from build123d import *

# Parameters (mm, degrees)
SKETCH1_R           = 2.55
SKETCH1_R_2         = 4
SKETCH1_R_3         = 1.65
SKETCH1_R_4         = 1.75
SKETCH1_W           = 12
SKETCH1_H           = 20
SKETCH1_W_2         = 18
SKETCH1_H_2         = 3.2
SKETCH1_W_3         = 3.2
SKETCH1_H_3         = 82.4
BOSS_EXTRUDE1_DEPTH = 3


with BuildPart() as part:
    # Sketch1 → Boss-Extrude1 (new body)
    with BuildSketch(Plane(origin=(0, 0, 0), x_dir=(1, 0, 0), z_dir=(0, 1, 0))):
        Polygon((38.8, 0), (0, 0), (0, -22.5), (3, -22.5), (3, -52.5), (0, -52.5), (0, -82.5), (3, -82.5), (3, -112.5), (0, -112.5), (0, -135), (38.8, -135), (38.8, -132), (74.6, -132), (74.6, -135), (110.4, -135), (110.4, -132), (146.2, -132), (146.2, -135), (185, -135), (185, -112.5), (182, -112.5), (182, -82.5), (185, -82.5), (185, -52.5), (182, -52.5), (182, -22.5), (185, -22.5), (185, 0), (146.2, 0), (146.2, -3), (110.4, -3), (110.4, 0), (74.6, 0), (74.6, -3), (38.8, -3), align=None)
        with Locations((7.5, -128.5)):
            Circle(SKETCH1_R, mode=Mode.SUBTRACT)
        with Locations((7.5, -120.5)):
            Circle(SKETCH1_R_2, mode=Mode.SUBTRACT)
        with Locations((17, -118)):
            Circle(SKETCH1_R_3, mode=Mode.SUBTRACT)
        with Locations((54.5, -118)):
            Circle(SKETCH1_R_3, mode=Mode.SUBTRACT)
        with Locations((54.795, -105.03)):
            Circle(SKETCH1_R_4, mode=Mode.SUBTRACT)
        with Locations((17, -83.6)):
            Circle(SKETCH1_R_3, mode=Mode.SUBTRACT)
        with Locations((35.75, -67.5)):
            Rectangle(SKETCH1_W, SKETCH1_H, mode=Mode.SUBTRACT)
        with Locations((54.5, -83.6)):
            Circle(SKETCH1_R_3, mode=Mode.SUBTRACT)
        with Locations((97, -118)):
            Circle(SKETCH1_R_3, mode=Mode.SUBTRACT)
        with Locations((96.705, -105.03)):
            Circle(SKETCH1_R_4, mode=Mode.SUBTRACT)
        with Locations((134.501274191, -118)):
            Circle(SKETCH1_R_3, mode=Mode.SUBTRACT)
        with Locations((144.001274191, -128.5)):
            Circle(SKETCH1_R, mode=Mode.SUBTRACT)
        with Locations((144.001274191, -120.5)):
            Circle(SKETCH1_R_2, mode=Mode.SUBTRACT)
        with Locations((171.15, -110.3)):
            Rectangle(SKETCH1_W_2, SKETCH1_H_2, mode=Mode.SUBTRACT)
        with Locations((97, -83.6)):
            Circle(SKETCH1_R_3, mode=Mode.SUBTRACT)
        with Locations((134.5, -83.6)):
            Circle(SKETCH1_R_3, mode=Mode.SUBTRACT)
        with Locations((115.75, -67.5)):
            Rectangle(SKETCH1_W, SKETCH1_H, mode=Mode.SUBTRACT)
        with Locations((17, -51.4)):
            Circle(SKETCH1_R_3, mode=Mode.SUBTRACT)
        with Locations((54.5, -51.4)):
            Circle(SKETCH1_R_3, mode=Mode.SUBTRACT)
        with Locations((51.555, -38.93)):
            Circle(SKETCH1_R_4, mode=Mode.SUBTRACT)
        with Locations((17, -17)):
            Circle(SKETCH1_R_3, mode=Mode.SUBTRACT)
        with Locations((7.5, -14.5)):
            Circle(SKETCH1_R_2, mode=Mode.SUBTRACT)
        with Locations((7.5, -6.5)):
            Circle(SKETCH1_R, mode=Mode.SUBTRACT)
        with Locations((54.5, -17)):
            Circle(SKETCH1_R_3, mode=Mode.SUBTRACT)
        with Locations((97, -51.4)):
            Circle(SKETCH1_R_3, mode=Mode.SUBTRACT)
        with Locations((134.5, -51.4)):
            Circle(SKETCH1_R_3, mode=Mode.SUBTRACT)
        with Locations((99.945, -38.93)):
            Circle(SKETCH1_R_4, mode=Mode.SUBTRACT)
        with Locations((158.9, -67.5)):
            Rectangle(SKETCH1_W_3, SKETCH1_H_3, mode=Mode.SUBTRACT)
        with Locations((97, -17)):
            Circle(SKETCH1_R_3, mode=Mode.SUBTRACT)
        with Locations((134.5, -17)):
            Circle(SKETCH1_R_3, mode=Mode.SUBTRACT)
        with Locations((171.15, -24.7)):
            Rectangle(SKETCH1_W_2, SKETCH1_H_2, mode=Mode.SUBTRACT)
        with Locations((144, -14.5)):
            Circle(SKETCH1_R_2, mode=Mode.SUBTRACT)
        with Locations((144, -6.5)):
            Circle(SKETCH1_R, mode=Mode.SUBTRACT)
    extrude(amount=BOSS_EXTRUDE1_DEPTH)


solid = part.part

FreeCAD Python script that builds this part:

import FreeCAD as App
import Part
import Sketcher
Q = App.Units.Quantity


def add_polygon(sketch, points):
    """Adds a closed chain of lines whose ends are joined by coincident constraints."""
    first, n = sketch.GeometryCount, len(points)
    for a, b in zip(points, points[1:] + points[:1]):
        sketch.addGeometry(Part.LineSegment(App.Vector(*a, 0), App.Vector(*b, 0)), False)
    for i in range(n):
        sketch.addConstraint(Sketcher.Constraint("Coincident", first + i, 2, first + (i + 1) % n, 1))

doc = App.newDocument("Part")
body = doc.addObject("PartDesign::Body", "Body")

# Sketch on XZ plane
sketch1 = body.newObject("Sketcher::SketchObject", "Sketch")
sketch1.AttachmentSupport = (doc.getObject("XZ_Plane"), [""])
sketch1.MapMode = "FlatFace"
add_polygon(sketch1, [(38.8, 0), (0, 0), (0, 22.5), (3, 22.5), (3, 52.5), (0, 52.5), (0, 82.5), (3, 82.5), (3, 112.5), (0, 112.5), (0, 135), (38.8, 135), (38.8, 132), (74.6, 132), (74.6, 135), (110.4, 135), (110.4, 132), (146.2, 132), (146.2, 135), (185, 135), (185, 112.5), (182, 112.5), (182, 82.5), (185, 82.5), (185, 52.5), (182, 52.5), (182, 22.5), (185, 22.5), (185, 0), (146.2, 0), (146.2, 3), (110.4, 3), (110.4, 0), (74.6, 0), (74.6, 3), (38.8, 3)])  # lines 0-35
sketch1.addGeometry(Part.Circle(App.Vector(7.5, 128.5, 0), App.Vector(0, 0, 1), 2.55), False)  # 36
sketch1.addGeometry(Part.Circle(App.Vector(7.5, 120.5, 0), App.Vector(0, 0, 1), 4), False)  # 37
sketch1.addGeometry(Part.Circle(App.Vector(17, 118, 0), App.Vector(0, 0, 1), 1.65), False)  # 38
sketch1.addGeometry(Part.Circle(App.Vector(54.5, 118, 0), App.Vector(0, 0, 1), 1.65), False)  # 39
sketch1.addGeometry(Part.Circle(App.Vector(54.795, 105.03, 0), App.Vector(0, 0, 1), 1.75), False)  # 40
sketch1.addGeometry(Part.Circle(App.Vector(17, 83.6, 0), App.Vector(0, 0, 1), 1.65), False)  # 41
sketch1.addGeometry(Part.Circle(App.Vector(54.5, 83.6, 0), App.Vector(0, 0, 1), 1.65), False)  # 42
sketch1.addGeometry(Part.Circle(App.Vector(97, 118, 0), App.Vector(0, 0, 1), 1.65), False)  # 43
sketch1.addGeometry(Part.Circle(App.Vector(134.501274, 118, 0), App.Vector(0, 0, 1), 1.65), False)  # 44
sketch1.addGeometry(Part.Circle(App.Vector(96.705, 105.03, 0), App.Vector(0, 0, 1), 1.75), False)  # 45
sketch1.addGeometry(Part.Circle(App.Vector(144.001274, 128.5, 0), App.Vector(0, 0, 1), 2.55), False)  # 46
sketch1.addGeometry(Part.Circle(App.Vector(144.001274, 120.5, 0), App.Vector(0, 0, 1), 4), False)  # 47
add_polygon(sketch1, [(180.15, 111.9), (162.15, 111.9), (162.15, 108.7), (180.15, 108.7)])  # lines 48-51
sketch1.addGeometry(Part.Circle(App.Vector(97, 83.6, 0), App.Vector(0, 0, 1), 1.65), False)  # 52
sketch1.addGeometry(Part.Circle(App.Vector(134.5, 83.6, 0), App.Vector(0, 0, 1), 1.65), False)  # 53
add_polygon(sketch1, [(41.75, 77.5), (29.75, 77.5), (29.75, 57.5), (41.75, 57.5)])  # lines 54-57
sketch1.addGeometry(Part.Circle(App.Vector(17, 51.4, 0), App.Vector(0, 0, 1), 1.65), False)  # 58
sketch1.addGeometry(Part.Circle(App.Vector(54.5, 51.4, 0), App.Vector(0, 0, 1), 1.65), False)  # 59
sketch1.addGeometry(Part.Circle(App.Vector(51.555, 38.93, 0), App.Vector(0, 0, 1), 1.75), False)  # 60
sketch1.addGeometry(Part.Circle(App.Vector(7.5, 14.5, 0), App.Vector(0, 0, 1), 4), False)  # 61
sketch1.addGeometry(Part.Circle(App.Vector(17, 17, 0), App.Vector(0, 0, 1), 1.65), False)  # 62
sketch1.addGeometry(Part.Circle(App.Vector(7.5, 6.5, 0), App.Vector(0, 0, 1), 2.55), False)  # 63
sketch1.addGeometry(Part.Circle(App.Vector(54.5, 17, 0), App.Vector(0, 0, 1), 1.65), False)  # 64
add_polygon(sketch1, [(121.75, 77.5), (109.75, 77.5), (109.75, 57.5), (121.75, 57.5)])  # lines 65-68
sketch1.addGeometry(Part.Circle(App.Vector(97, 51.4, 0), App.Vector(0, 0, 1), 1.65), False)  # 69
sketch1.addGeometry(Part.Circle(App.Vector(99.945, 38.93, 0), App.Vector(0, 0, 1), 1.75), False)  # 70
sketch1.addGeometry(Part.Circle(App.Vector(134.5, 51.4, 0), App.Vector(0, 0, 1), 1.65), False)  # 71
add_polygon(sketch1, [(160.5, 108.7), (157.3, 108.7), (157.3, 26.3), (160.5, 26.3)])  # lines 72-75
sketch1.addGeometry(Part.Circle(App.Vector(97, 17, 0), App.Vector(0, 0, 1), 1.65), False)  # 76
sketch1.addGeometry(Part.Circle(App.Vector(134.5, 17, 0), App.Vector(0, 0, 1), 1.65), False)  # 77
add_polygon(sketch1, [(180.15, 26.3), (162.15, 26.3), (162.15, 23.1), (180.15, 23.1)])  # lines 78-81
sketch1.addGeometry(Part.Circle(App.Vector(144, 14.5, 0), App.Vector(0, 0, 1), 4), False)  # 82
sketch1.addGeometry(Part.Circle(App.Vector(144, 6.5, 0), App.Vector(0, 0, 1), 2.55), False)  # 83
sketch1.addConstraint([
    Sketcher.Constraint("Horizontal", 0),
    Sketcher.Constraint("Vertical", 1),
    Sketcher.Constraint("Horizontal", 2),
    Sketcher.Constraint("Vertical", 3),
    Sketcher.Constraint("Horizontal", 4),
    Sketcher.Constraint("Vertical", 5),
    Sketcher.Constraint("Horizontal", 6),
    Sketcher.Constraint("Vertical", 7),
    Sketcher.Constraint("Horizontal", 8),
    Sketcher.Constraint("Vertical", 9),
    Sketcher.Constraint("Horizontal", 10),
    Sketcher.Constraint("Vertical", 11),
    Sketcher.Constraint("Horizontal", 12),
    Sketcher.Constraint("Vertical", 13),
    Sketcher.Constraint("Horizontal", 14),
    Sketcher.Constraint("Vertical", 15),
    Sketcher.Constraint("Horizontal", 16),
    Sketcher.Constraint("Vertical", 17),
    Sketcher.Constraint("Horizontal", 18),
    Sketcher.Constraint("Vertical", 19),
    Sketcher.Constraint("Horizontal", 20),
    Sketcher.Constraint("Vertical", 21),
    Sketcher.Constraint("Horizontal", 22),
    Sketcher.Constraint("Vertical", 23),
    Sketcher.Constraint("Horizontal", 24),
    Sketcher.Constraint("Vertical", 25),
    Sketcher.Constraint("Horizontal", 26),
    Sketcher.Constraint("Vertical", 27),
    Sketcher.Constraint("Horizontal", 28),
    Sketcher.Constraint("Vertical", 29),
    Sketcher.Constraint("Horizontal", 30),
    Sketcher.Constraint("Vertical", 31),
    Sketcher.Constraint("Horizontal", 32),
    Sketcher.Constraint("Vertical", 33),
    Sketcher.Constraint("Horizontal", 34),
    Sketcher.Constraint("Vertical", 35),
    Sketcher.Constraint("Horizontal", 48),
    Sketcher.Constraint("Vertical", 49),
    Sketcher.Constraint("Horizontal", 50),
    Sketcher.Constraint("Vertical", 51),
    Sketcher.Constraint("Horizontal", 54),
    Sketcher.Constraint("Vertical", 55),
    Sketcher.Constraint("Horizontal", 56),
    Sketcher.Constraint("Vertical", 57),
    Sketcher.Constraint("Horizontal", 65),
    Sketcher.Constraint("Vertical", 66),
    Sketcher.Constraint("Horizontal", 67),
    Sketcher.Constraint("Vertical", 68),
    Sketcher.Constraint("Horizontal", 72),
    Sketcher.Constraint("Vertical", 73),
    Sketcher.Constraint("Horizontal", 74),
    Sketcher.Constraint("Vertical", 75),
    Sketcher.Constraint("Horizontal", 78),
    Sketcher.Constraint("Vertical", 79),
    Sketcher.Constraint("Horizontal", 80),
    Sketcher.Constraint("Vertical", 81),
    Sketcher.Constraint("Coincident", 0, 2, -1, 1),
    Sketcher.Constraint("Equal", 38, 39),
    Sketcher.Constraint("Equal", 39, 41),
    Sketcher.Constraint("Equal", 41, 42),
    Sketcher.Constraint("Equal", 42, 43),
    Sketcher.Constraint("Equal", 43, 44),
    Sketcher.Constraint("Equal", 40, 45),
    Sketcher.Constraint("Equal", 36, 46),
    Sketcher.Constraint("Equal", 37, 47),
    Sketcher.Constraint("Equal", 44, 52),
    Sketcher.Constraint("Equal", 52, 53),
    Sketcher.Constraint("Equal", 53, 58),
    Sketcher.Constraint("Equal", 58, 59),
    Sketcher.Constraint("Equal", 45, 60),
    Sketcher.Constraint("Equal", 47, 61),
    Sketcher.Constraint("Equal", 59, 62),
    Sketcher.Constraint("Equal", 46, 63),
    Sketcher.Constraint("Equal", 62, 64),
    Sketcher.Constraint("Equal", 64, 69),
    Sketcher.Constraint("Equal", 60, 70),
    Sketcher.Constraint("Equal", 69, 71),
    Sketcher.Constraint("Equal", 71, 76),
    Sketcher.Constraint("Equal", 76, 77),
    Sketcher.Constraint("Equal", 61, 82),
    Sketcher.Constraint("Equal", 63, 83),
    Sketcher.Constraint("PointOnObject", 4, 2, -2),
    Sketcher.Constraint("PointOnObject", 8, 2, -2),
    Sketcher.Constraint("PointOnObject", 27, 2, -1),
    Sketcher.Constraint("PointOnObject", 31, 2, -1),
    Sketcher.Constraint("Horizontal", 38, 3, 39, 3),
    Sketcher.Constraint("Horizontal", 41, 3, 42, 3),
    Sketcher.Constraint("Horizontal", 39, 3, 43, 3),
    Sketcher.Constraint("Horizontal", 43, 3, 44, 3),
    Sketcher.Constraint("Horizontal", 40, 3, 45, 3),
    Sketcher.Constraint("Horizontal", 36, 3, 46, 3),
    Sketcher.Constraint("Horizontal", 37, 3, 47, 3),
    Sketcher.Constraint("Horizontal", 42, 3, 52, 3),
    Sketcher.Constraint("Horizontal", 52, 3, 53, 3),
    Sketcher.Constraint("Horizontal", 58, 3, 59, 3),
    Sketcher.Constraint("Horizontal", 62, 3, 64, 3),
    Sketcher.Constraint("Horizontal", 59, 3, 69, 3),
    Sketcher.Constraint("Horizontal", 60, 3, 70, 3),
    Sketcher.Constraint("Horizontal", 69, 3, 71, 3),
    Sketcher.Constraint("Horizontal", 64, 3, 76, 3),
    Sketcher.Constraint("Horizontal", 76, 3, 77, 3),
    Sketcher.Constraint("Horizontal", 61, 3, 82, 3),
    Sketcher.Constraint("Horizontal", 63, 3, 83, 3),
    Sketcher.Constraint("Horizontal", 10, 2, 13, 2),
    Sketcher.Constraint("Horizontal", 12, 2, 15, 2),
    Sketcher.Constraint("Horizontal", 14, 2, 17, 2),
    Sketcher.Constraint("Horizontal", 8, 2, 19, 2),
    Sketcher.Constraint("Horizontal", 6, 2, 21, 2),
    Sketcher.Constraint("Horizontal", 4, 2, 23, 2),
    Sketcher.Constraint("Horizontal", 2, 2, 25, 2),
    Sketcher.Constraint("Horizontal", 30, 2, 33, 2),
    Sketcher.Constraint("Horizontal", 57, 2, 65, 2),
    Sketcher.Constraint("Horizontal", 56, 2, 66, 2),
    Sketcher.Constraint("Horizontal", 50, 2, 72, 2),
    Sketcher.Constraint("Horizontal", 74, 2, 78, 2),
    Sketcher.Constraint("Vertical", 36, 3, 37, 3),
    Sketcher.Constraint("Vertical", 38, 3, 41, 3),
    Sketcher.Constraint("Vertical", 39, 3, 42, 3),
    Sketcher.Constraint("Vertical", 46, 3, 47, 3),
    Sketcher.Constraint("Vertical", 43, 3, 52, 3),
    Sketcher.Constraint("Vertical", 41, 3, 58, 3),
    Sketcher.Constraint("Vertical", 42, 3, 59, 3),
    Sketcher.Constraint("Vertical", 37, 3, 61, 3),
    Sketcher.Constraint("Vertical", 58, 3, 62, 3),
    Sketcher.Constraint("Vertical", 61, 3, 63, 3),
    Sketcher.Constraint("Vertical", 59, 3, 64, 3),
    Sketcher.Constraint("Vertical", 52, 3, 69, 3),
    Sketcher.Constraint("Vertical", 53, 3, 71, 3),
    Sketcher.Constraint("Vertical", 69, 3, 76, 3),
    Sketcher.Constraint("Vertical", 71, 3, 77, 3),
    Sketcher.Constraint("Vertical", 82, 3, 83, 3),
    Sketcher.Constraint("Vertical", 3, 2, 6, 2),
    Sketcher.Constraint("Vertical", 19, 2, 22, 2),
    Sketcher.Constraint("Vertical", 21, 2, 24, 2),
    Sketcher.Constraint("Vertical", 23, 2, 26, 2),
    Sketcher.Constraint("Vertical", 17, 2, 28, 2),
    Sketcher.Constraint("Vertical", 15, 2, 30, 2),
    Sketcher.Constraint("Vertical", 13, 2, 32, 2),
    Sketcher.Constraint("Vertical", 11, 2, 34, 2),
    Sketcher.Constraint("Vertical", 49, 2, 78, 2),
    Sketcher.Constraint("Vertical", 51, 2, 80, 2),
    Sketcher.Constraint("Equal", 12, 14),
    Sketcher.Constraint("Equal", 14, 16),
    Sketcher.Constraint("Equal", 10, 18),
    Sketcher.Constraint("Equal", 8, 20),
    Sketcher.Constraint("Equal", 56, 65),
    Sketcher.Constraint("Equal", 3, 5),
    Sketcher.Constraint("Equal", 5, 7),
    Sketcher.Constraint("Equal", 1, 9),
    Sketcher.Constraint("Equal", 26, 11),
    Sketcher.Constraint("Equal", 17, 29),
    Sketcher.Constraint("Equal", 74, 49),
    Sketcher.Constraint("Equal", 51, 79),
    Sketcher.Constraint("Diameter", 37, Q("8 mm")),
    Sketcher.Constraint("Diameter", 36, Q("5.1 mm")),
    Sketcher.Constraint("Diameter", 38, Q("3.3 mm")),
    Sketcher.Constraint("Diameter", 40, Q("3.5 mm")),
    Sketcher.Constraint("DistanceX", 2, 1, 2, 2, Q("3 mm")),
    Sketcher.Constraint("DistanceX", 48, 2, 48, 1, Q("18 mm")),
    Sketcher.Constraint("DistanceX", 54, 2, 54, 1, Q("12 mm")),
    Sketcher.Constraint("DistanceY", 3, 1, 3, 2, Q("30 mm")),
    Sketcher.Constraint("DistanceY", 55, 2, 55, 1, Q("20 mm")),
    Sketcher.Constraint("DistanceX", 0, 2, 0, 1, Q("38.8 mm")),
    Sketcher.Constraint("DistanceX", 12, 1, 12, 2, Q("35.8 mm")),
    Sketcher.Constraint("DistanceX", 72, 2, 72, 1, Q("3.2 mm")),
    Sketcher.Constraint("DistanceY", 1, 1, 1, 2, Q("22.5 mm")),
    Sketcher.Constraint("DistanceY", 73, 2, 73, 1, Q("82.4 mm")),
    Sketcher.Constraint("DistanceX", -1, 1, 38, 3, Q("17 mm")),
    Sketcher.Constraint("DistanceY", -1, 1, 38, 3, Q("118 mm")),
    Sketcher.Constraint("DistanceX", -1, 1, 43, 3, Q("97 mm")),
    Sketcher.Constraint("DistanceY", -1, 1, 62, 3, Q("17 mm")),
    Sketcher.Constraint("DistanceX", -1, 1, 82, 3, Q("144 mm")),
    Sketcher.Constraint("DistanceX", -1, 1, 36, 3, Q("7.5 mm")),
    Sketcher.Constraint("DistanceY", -1, 1, 36, 3, Q("128.5 mm")),
    Sketcher.Constraint("DistanceY", -1, 1, 37, 3, Q("120.5 mm")),
    Sketcher.Constraint("DistanceX", -1, 1, 39, 3, Q("54.5 mm")),
    Sketcher.Constraint("DistanceY", -1, 1, 41, 3, Q("83.6 mm")),
    Sketcher.Constraint("DistanceX", -1, 1, 53, 3, Q("134.5 mm")),
    Sketcher.Constraint("DistanceY", -1, 1, 58, 3, Q("51.4 mm")),
    Sketcher.Constraint("DistanceY", -1, 1, 61, 3, Q("14.5 mm")),
    Sketcher.Constraint("DistanceY", -1, 1, 63, 3, Q("6.5 mm")),
    Sketcher.Constraint("DistanceY", -1, 1, 48, 2, Q("111.9 mm")),
    Sketcher.Constraint("DistanceY", -1, 1, 54, 2, Q("77.5 mm")),
    Sketcher.Constraint("DistanceX", -1, 1, 72, 2, Q("157.3 mm")),
    Sketcher.Constraint("DistanceY", -1, 1, 40, 3, Q("105.03 mm")),
    Sketcher.Constraint("DistanceY", -1, 1, 60, 3, Q("38.93 mm")),
    Sketcher.Constraint("DistanceX", -1, 1, 48, 2, Q("162.15 mm")),
    Sketcher.Constraint("DistanceX", -1, 1, 54, 2, Q("29.75 mm")),
    Sketcher.Constraint("DistanceX", -1, 1, 65, 2, Q("109.75 mm")),
    Sketcher.Constraint("DistanceX", -1, 1, 40, 3, Q("54.795 mm")),
    Sketcher.Constraint("DistanceX", -1, 1, 45, 3, Q("96.705 mm")),
    Sketcher.Constraint("DistanceX", -1, 1, 60, 3, Q("51.555 mm")),
    Sketcher.Constraint("DistanceX", -1, 1, 70, 3, Q("99.945 mm")),
    Sketcher.Constraint("DistanceX", -1, 1, 44, 3, Q("134.501274 mm")),
    Sketcher.Constraint("DistanceX", -1, 1, 46, 3, Q("144.001274 mm")),
])
pad1 = body.newObject("PartDesign::Pad", "Pad")
pad1.Profile = sketch1
pad1.Length = 3
pad1.Reversed = True

doc.recompute()
